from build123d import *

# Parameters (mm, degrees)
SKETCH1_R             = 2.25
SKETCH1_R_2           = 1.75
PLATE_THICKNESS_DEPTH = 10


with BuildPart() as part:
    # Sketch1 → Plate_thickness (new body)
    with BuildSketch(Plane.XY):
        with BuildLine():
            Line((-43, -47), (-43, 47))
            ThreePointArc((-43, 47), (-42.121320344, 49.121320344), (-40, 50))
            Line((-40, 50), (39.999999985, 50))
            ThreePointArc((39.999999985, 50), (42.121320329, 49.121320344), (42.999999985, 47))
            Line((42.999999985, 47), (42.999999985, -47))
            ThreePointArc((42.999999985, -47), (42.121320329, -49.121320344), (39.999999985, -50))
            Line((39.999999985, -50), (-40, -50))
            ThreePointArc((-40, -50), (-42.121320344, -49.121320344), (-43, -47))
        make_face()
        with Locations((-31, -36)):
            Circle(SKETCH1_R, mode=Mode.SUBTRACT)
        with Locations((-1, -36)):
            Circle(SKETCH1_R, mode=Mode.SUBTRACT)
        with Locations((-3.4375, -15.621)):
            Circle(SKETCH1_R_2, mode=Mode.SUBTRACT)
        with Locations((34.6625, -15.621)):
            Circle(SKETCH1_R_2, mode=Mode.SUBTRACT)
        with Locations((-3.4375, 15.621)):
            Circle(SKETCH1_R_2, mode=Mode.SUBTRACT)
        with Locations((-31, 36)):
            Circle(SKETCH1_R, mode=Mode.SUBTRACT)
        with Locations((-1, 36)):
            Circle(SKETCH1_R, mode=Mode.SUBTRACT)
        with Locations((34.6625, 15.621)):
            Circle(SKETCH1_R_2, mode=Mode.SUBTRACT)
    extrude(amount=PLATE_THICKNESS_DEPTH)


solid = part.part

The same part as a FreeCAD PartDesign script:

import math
import FreeCAD as App
import Part
import Sketcher

V = App.Vector

doc = App.newDocument("Part")
params = doc.addObject("Spreadsheet::Sheet", "Params")
for row, (alias, value) in enumerate([
    ("sketch1_radius", "3 mm"),
    ("sketch1_diameter", "3.5 mm"),
    ("sketch1_diameter2", "4.5 mm"),
    ("sketch1_width", "80 mm"),
    ("sketch1_height", "94 mm"),
    ("pad1_length", "10 mm"),
], start=1):
    params.set(f"A{row}", alias)
    params.set(f"B{row}", "=" + value)
    params.setAlias(f"B{row}", alias)

body = doc.addObject("PartDesign::Body", "Body")

# Sketch on XY plane
sketch1 = body.newObject("Sketcher::SketchObject", "Sketch")
sketch1.AttachmentSupport = (doc.getObject("XY_Plane"), [""])
sketch1.MapMode = "FlatFace"
sketch1.addGeometry(Part.LineSegment(V(-43, 47, 0), V(-43, -47, 0)), False)
sketch1.addGeometry(Part.ArcOfCircle(Part.Circle(V(-40, -47, 0), V(0, 0, 1), 3), math.radians(180), math.radians(270)), False)
sketch1.addGeometry(Part.LineSegment(V(-40, -50, 0), V(40, -50, 0)), False)
sketch1.addGeometry(Part.ArcOfCircle(Part.Circle(V(40, -47, 0), V(0, 0, 1), 3), math.radians(-90), math.radians(0)), False)
sketch1.addGeometry(Part.LineSegment(V(43, -47, 0), V(43, 47, 0)), False)
sketch1.addGeometry(Part.ArcOfCircle(Part.Circle(V(40, 47, 0), V(0, 0, 1), 3), math.radians(0), math.radians(90)), False)
sketch1.addGeometry(Part.LineSegment(V(40, 50, 0), V(-40, 50, 0)), False)
sketch1.addGeometry(Part.ArcOfCircle(Part.Circle(V(-40, 47, 0), V(0, 0, 1), 3), math.radians(90), math.radians(180)), False)
sketch1.addGeometry(Part.Circle(V(34.7, -15.6, 0), V(0, 0, 1), 1.8), False)
sketch1.addGeometry(Part.Circle(V(-1, -36, 0), V(0, 0, 1), 2.2), False)
sketch1.addGeometry(Part.Circle(V(-31, -36, 0), V(0, 0, 1), 2.2), False)
sketch1.addGeometry(Part.Circle(V(-3.4, -15.6, 0), V(0, 0, 1), 1.8), False)
sketch1.addGeometry(Part.Circle(V(34.7, 15.6, 0), V(0, 0, 1), 1.8), False)
sketch1.addGeometry(Part.Circle(V(-3.4, 15.6, 0), V(0, 0, 1), 1.8), False)
sketch1.addGeometry(Part.Circle(V(-1, 36, 0), V(0, 0, 1), 2.2), False)
sketch1.addGeometry(Part.Circle(V(-31, 36, 0), V(0, 0, 1), 2.2), False)
sketch1.addConstraint(Sketcher.Constraint("Tangent", 0, 2, 1, 1))
sketch1.addConstraint(Sketcher.Constraint("Tangent", 1, 2, 2, 1))
sketch1.addConstraint(Sketcher.Constraint("Tangent", 2, 2, 3, 1))
sketch1.addConstraint(Sketcher.Constraint("Tangent", 3, 2, 4, 1))
sketch1.addConstraint(Sketcher.Constraint("Tangent", 4, 2, 5, 1))
sketch1.addConstraint(Sketcher.Constraint("Tangent", 5, 2, 6, 1))
sketch1.addConstraint(Sketcher.Constraint("Tangent", 6, 2, 7, 1))
sketch1.addConstraint(Sketcher.Constraint("Tangent", 7, 2, 0, 1))
sketch1.addConstraint(Sketcher.Constraint("Vertical", 0))
sketch1.addConstraint(Sketcher.Constraint("Horizontal", 2))
sketch1.addConstraint(Sketcher.Constraint("Vertical", 4))
sketch1.addConstraint(Sketcher.Constraint("Horizontal", 6))
sketch1.addConstraint(Sketcher.Constraint("Equal", 1, 3))
sketch1.addConstraint(Sketcher.Constraint("Equal", 3, 5))
sketch1.addConstraint(Sketcher.Constraint("Equal", 5, 7))
sketch1.addConstraint(Sketcher.Constraint("Equal", 9, 10))
sketch1.addConstraint(Sketcher.Constraint("Equal", 8, 11))
sketch1.addConstraint(Sketcher.Constraint("Equal", 11, 12))
sketch1.addConstraint(Sketcher.Constraint("Equal", 12, 13))
sketch1.addConstraint(Sketcher.Constraint("Equal", 10, 14))
sketch1.addConstraint(Sketcher.Constraint("Equal", 14, 15))
sketch1.addConstraint(Sketcher.Constraint("Symmetric", 1, 3, 5, 3, -1, 1))
sketch1.addConstraint(Sketcher.Constraint("Symmetric", 8, 3, 12, 3, -1))
sketch1.addConstraint(Sketcher.Constraint("Symmetric", 11, 3, 13, 3, -1))
sketch1.addConstraint(Sketcher.Constraint("Symmetric", 9, 3, 14, 3, -1))
sketch1.addConstraint(Sketcher.Constraint("Symmetric", 10, 3, 15, 3, -1))
sketch1.addConstraint(Sketcher.Constraint("Horizontal", 9, 3, 10, 3))
sketch1.addConstraint(Sketcher.Constraint("Horizontal", 8, 3, 11, 3))
sketch1.addConstraint(Sketcher.Constraint("Radius", 1, 3.0))
sketch1.addConstraint(Sketcher.Constraint("Diameter", 8, 3.5))
sketch1.addConstraint(Sketcher.Constraint("Diameter", 9, 4.5))
sketch1.addConstraint(Sketcher.Constraint("DistanceX", 2, 1, 2, 2, 80.0))
sketch1.addConstraint(Sketcher.Constraint("DistanceY", 0, 2, 0, 1, 94.0))
sketch1.addConstraint(Sketcher.Constraint("DistanceX", 9, 3, -1, 1, 1.0))
sketch1.addConstraint(Sketcher.Constraint("DistanceY", 9, 3, -1, 1, 36.0))
sketch1.addConstraint(Sketcher.Constraint("DistanceX", 10, 3, -1, 1, 31.0))
sketch1.addConstraint(Sketcher.Constraint("DistanceX", 11, 3, 8, 3, 38.1))
sketch1.addConstraint(Sketcher.Constraint("DistanceY", 8, 3, -1, 1, 15.621))
sketch1.addConstraint(Sketcher.Constraint("DistanceX", -1, 1, 8, 3, 34.6625))
sketch1.setExpression("Constraints[28]", "Params.sketch1_radius")
sketch1.setExpression("Constraints[29]", "Params.sketch1_diameter")
sketch1.setExpression("Constraints[30]", "Params.sketch1_diameter2")
sketch1.setExpression("Constraints[31]", "Params.sketch1_width")
sketch1.setExpression("Constraints[32]", "Params.sketch1_height")
pad1 = body.newObject("PartDesign::Pad", "Pad")
pad1.Profile = sketch1
pad1.setExpression("Length", "Params.pad1_length")

doc.recompute()
